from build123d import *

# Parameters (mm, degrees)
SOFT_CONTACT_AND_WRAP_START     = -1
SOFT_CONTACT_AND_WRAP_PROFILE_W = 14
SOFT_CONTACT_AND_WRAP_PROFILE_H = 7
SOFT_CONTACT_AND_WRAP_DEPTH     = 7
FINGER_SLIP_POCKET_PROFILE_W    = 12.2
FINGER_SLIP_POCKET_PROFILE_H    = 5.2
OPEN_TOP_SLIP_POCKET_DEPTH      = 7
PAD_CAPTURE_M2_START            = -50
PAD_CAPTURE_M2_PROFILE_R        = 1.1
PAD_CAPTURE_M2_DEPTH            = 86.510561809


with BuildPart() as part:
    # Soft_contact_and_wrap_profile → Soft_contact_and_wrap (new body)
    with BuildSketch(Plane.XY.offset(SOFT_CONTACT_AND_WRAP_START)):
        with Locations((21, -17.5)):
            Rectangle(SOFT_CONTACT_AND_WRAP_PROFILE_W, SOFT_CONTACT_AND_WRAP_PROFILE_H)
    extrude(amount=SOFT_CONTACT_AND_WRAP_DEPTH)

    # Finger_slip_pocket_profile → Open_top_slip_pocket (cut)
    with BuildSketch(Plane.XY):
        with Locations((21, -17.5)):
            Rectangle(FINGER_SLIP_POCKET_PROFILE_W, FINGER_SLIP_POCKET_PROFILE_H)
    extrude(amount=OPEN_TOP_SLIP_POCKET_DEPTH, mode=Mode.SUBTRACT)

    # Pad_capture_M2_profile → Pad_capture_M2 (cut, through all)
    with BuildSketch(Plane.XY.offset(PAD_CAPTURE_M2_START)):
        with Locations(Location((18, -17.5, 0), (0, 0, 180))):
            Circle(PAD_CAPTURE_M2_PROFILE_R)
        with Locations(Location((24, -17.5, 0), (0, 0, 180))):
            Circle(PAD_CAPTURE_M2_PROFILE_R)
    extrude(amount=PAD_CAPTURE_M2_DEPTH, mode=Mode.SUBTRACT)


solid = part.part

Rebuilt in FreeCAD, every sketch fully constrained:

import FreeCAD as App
import Part
import Sketcher

V = App.Vector
Q = App.Units.Quantity

doc = App.newDocument("Part")
params = doc.addObject("Spreadsheet::Sheet", "Params")
for row, (alias, value) in enumerate([
    ("sketch1_width", "14 mm"),
    ("sketch1_height", "7 mm"),
    ("pad1_length", "7 mm"),
    ("sketch2_width", "12.2 mm"),
    ("sketch2_height", "5.2 mm"),
    ("pocket1_length", "7 mm"),
    ("sketch3_diameter", "2.2 mm"),
], start=1):
    params.set(f"A{row}", alias)
    params.set(f"B{row}", "=" + value)
    params.setAlias(f"B{row}", alias)

body = doc.addObject("PartDesign::Body", "Body")

# Sketch on XY plane
sketch1 = doc.addObject("Sketcher::SketchObject", "Sketch")
body.addObject(sketch1)
sketch1.AttachmentSupport = (doc.XY_Plane, [""])
sketch1.MapMode = "FlatFace"
sketch1.AttachmentOffset = App.Placement(V(0, 0, -1), App.Rotation())
sketch1.addGeometry([
    Part.LineSegment(V(14, -14, 0), V(14, -21, 0)),
    Part.LineSegment(V(14, -21, 0), V(28, -21, 0)),
    Part.LineSegment(V(28, -21, 0), V(28, -14, 0)),
    Part.LineSegment(V(28, -14, 0), V(14, -14, 0)),
], False)
sketch1.addConstraint([
    Sketcher.Constraint("Coincident", 0, 2, 1, 1),
    Sketcher.Constraint("Coincident", 1, 2, 2, 1),
    Sketcher.Constraint("Coincident", 2, 2, 3, 1),
    Sketcher.Constraint("Coincident", 3, 2, 0, 1),
    Sketcher.Constraint("Vertical", 0),
    Sketcher.Constraint("Horizontal", 1),
    Sketcher.Constraint("Vertical", 2),
    Sketcher.Constraint("Horizontal", 3),
    Sketcher.Constraint("DistanceX", 1, 1, 1, 2, Q("14 mm")),
    Sketcher.Constraint("DistanceY", 0, 2, 0, 1, Q("7 mm")),
    Sketcher.Constraint("DistanceX", -1, 1, 0, 2, Q("14 mm")),
    Sketcher.Constraint("DistanceY", 0, 2, -1, 1, Q("21 mm")),
])
sketch1.setExpression("Constraints[8]", "Params.sketch1_width")
sketch1.setExpression("Constraints[9]", "Params.sketch1_height")
pad1 = doc.addObject("PartDesign::Pad", "Pad")
body.addObject(pad1)
pad1.Profile = sketch1
pad1.setExpression("Length", "Params.pad1_length")

# Sketch on XY plane
sketch2 = doc.addObject("Sketcher::SketchObject", "Sketch001")
body.addObject(sketch2)
sketch2.AttachmentSupport = (doc.XY_Plane, [""])
sketch2.MapMode = "FlatFace"
sketch2.addGeometry([
    Part.LineSegment(V(14.9, -14.9, 0), V(14.9, -20.1, 0)),
    Part.LineSegment(V(14.9, -20.1, 0), V(27.1, -20.1, 0)),
    Part.LineSegment(V(27.1, -20.1, 0), V(27.1, -14.9, 0)),
    Part.LineSegment(V(27.1, -14.9, 0), V(14.9, -14.9, 0)),
], False)
sketch2.addConstraint([
    Sketcher.Constraint("Coincident", 0, 2, 1, 1),
    Sketcher.Constraint("Coincident", 1, 2, 2, 1),
    Sketcher.Constraint("Coincident", 2, 2, 3, 1),
    Sketcher.Constraint("Coincident", 3, 2, 0, 1),
    Sketcher.Constraint("Vertical", 0),
    Sketcher.Constraint("Horizontal", 1),
    Sketcher.Constraint("Vertical", 2),
    Sketcher.Constraint("Horizontal", 3),
    Sketcher.Constraint("DistanceX", 1, 1, 1, 2, Q("12.2 mm")),
    Sketcher.Constraint("DistanceY", 0, 2, 0, 1, Q("5.2 mm")),
    Sketcher.Constraint("DistanceX", -1, 1, 0, 2, Q("14.9 mm")),
    Sketcher.Constraint("DistanceY", 0, 2, -1, 1, Q("20.1 mm")),
])
sketch2.setExpression("Constraints[8]", "Params.sketch2_width")
sketch2.setExpression("Constraints[9]", "Params.sketch2_height")
pocket1 = doc.addObject("PartDesign::Pocket", "Pocket")
body.addObject(pocket1)
pocket1.Profile = sketch2
pocket1.setExpression("Length", "Params.pocket1_length")
pocket1.Reversed = True

# Sketch on XY plane
sketch3 = doc.addObject("Sketcher::SketchObject", "Sketch002")
body.addObject(sketch3)
sketch3.AttachmentSupport = (doc.XY_Plane, [""])
sketch3.MapMode = "FlatFace"
sketch3.AttachmentOffset = App.Placement(V(0, 0, -50), App.Rotation())
sketch3.addGeometry([
    Part.Circle(V(18, -17.5, 0), V(0, 0, 1), 1.1),
    Part.Circle(V(24, -17.5, 0), V(0, 0, 1), 1.1),
], False)
sketch3.addConstraint([
    Sketcher.Constraint("Equal", 0, 1),
    Sketcher.Constraint("Horizontal", 0, 3, 1, 3),
    Sketcher.Constraint("Diameter", 0, Q("2.2 mm")),
    Sketcher.Constraint("DistanceX", -1, 1, 0, 3, Q("18 mm")),
    Sketcher.Constraint("DistanceX", -1, 1, 1, 3, Q("24 mm")),
    Sketcher.Constraint("DistanceY", 0, 3, -1, 1, Q("17.5 mm")),
])
sketch3.setExpression("Constraints[2]", "Params.sketch3_diameter")
pocket2 = doc.addObject("PartDesign::Pocket", "Pocket001")
body.addObject(pocket2)
pocket2.Profile = sketch3
pocket2.Type = "ThroughAll"
pocket2.Reversed = True

doc.recompute()
